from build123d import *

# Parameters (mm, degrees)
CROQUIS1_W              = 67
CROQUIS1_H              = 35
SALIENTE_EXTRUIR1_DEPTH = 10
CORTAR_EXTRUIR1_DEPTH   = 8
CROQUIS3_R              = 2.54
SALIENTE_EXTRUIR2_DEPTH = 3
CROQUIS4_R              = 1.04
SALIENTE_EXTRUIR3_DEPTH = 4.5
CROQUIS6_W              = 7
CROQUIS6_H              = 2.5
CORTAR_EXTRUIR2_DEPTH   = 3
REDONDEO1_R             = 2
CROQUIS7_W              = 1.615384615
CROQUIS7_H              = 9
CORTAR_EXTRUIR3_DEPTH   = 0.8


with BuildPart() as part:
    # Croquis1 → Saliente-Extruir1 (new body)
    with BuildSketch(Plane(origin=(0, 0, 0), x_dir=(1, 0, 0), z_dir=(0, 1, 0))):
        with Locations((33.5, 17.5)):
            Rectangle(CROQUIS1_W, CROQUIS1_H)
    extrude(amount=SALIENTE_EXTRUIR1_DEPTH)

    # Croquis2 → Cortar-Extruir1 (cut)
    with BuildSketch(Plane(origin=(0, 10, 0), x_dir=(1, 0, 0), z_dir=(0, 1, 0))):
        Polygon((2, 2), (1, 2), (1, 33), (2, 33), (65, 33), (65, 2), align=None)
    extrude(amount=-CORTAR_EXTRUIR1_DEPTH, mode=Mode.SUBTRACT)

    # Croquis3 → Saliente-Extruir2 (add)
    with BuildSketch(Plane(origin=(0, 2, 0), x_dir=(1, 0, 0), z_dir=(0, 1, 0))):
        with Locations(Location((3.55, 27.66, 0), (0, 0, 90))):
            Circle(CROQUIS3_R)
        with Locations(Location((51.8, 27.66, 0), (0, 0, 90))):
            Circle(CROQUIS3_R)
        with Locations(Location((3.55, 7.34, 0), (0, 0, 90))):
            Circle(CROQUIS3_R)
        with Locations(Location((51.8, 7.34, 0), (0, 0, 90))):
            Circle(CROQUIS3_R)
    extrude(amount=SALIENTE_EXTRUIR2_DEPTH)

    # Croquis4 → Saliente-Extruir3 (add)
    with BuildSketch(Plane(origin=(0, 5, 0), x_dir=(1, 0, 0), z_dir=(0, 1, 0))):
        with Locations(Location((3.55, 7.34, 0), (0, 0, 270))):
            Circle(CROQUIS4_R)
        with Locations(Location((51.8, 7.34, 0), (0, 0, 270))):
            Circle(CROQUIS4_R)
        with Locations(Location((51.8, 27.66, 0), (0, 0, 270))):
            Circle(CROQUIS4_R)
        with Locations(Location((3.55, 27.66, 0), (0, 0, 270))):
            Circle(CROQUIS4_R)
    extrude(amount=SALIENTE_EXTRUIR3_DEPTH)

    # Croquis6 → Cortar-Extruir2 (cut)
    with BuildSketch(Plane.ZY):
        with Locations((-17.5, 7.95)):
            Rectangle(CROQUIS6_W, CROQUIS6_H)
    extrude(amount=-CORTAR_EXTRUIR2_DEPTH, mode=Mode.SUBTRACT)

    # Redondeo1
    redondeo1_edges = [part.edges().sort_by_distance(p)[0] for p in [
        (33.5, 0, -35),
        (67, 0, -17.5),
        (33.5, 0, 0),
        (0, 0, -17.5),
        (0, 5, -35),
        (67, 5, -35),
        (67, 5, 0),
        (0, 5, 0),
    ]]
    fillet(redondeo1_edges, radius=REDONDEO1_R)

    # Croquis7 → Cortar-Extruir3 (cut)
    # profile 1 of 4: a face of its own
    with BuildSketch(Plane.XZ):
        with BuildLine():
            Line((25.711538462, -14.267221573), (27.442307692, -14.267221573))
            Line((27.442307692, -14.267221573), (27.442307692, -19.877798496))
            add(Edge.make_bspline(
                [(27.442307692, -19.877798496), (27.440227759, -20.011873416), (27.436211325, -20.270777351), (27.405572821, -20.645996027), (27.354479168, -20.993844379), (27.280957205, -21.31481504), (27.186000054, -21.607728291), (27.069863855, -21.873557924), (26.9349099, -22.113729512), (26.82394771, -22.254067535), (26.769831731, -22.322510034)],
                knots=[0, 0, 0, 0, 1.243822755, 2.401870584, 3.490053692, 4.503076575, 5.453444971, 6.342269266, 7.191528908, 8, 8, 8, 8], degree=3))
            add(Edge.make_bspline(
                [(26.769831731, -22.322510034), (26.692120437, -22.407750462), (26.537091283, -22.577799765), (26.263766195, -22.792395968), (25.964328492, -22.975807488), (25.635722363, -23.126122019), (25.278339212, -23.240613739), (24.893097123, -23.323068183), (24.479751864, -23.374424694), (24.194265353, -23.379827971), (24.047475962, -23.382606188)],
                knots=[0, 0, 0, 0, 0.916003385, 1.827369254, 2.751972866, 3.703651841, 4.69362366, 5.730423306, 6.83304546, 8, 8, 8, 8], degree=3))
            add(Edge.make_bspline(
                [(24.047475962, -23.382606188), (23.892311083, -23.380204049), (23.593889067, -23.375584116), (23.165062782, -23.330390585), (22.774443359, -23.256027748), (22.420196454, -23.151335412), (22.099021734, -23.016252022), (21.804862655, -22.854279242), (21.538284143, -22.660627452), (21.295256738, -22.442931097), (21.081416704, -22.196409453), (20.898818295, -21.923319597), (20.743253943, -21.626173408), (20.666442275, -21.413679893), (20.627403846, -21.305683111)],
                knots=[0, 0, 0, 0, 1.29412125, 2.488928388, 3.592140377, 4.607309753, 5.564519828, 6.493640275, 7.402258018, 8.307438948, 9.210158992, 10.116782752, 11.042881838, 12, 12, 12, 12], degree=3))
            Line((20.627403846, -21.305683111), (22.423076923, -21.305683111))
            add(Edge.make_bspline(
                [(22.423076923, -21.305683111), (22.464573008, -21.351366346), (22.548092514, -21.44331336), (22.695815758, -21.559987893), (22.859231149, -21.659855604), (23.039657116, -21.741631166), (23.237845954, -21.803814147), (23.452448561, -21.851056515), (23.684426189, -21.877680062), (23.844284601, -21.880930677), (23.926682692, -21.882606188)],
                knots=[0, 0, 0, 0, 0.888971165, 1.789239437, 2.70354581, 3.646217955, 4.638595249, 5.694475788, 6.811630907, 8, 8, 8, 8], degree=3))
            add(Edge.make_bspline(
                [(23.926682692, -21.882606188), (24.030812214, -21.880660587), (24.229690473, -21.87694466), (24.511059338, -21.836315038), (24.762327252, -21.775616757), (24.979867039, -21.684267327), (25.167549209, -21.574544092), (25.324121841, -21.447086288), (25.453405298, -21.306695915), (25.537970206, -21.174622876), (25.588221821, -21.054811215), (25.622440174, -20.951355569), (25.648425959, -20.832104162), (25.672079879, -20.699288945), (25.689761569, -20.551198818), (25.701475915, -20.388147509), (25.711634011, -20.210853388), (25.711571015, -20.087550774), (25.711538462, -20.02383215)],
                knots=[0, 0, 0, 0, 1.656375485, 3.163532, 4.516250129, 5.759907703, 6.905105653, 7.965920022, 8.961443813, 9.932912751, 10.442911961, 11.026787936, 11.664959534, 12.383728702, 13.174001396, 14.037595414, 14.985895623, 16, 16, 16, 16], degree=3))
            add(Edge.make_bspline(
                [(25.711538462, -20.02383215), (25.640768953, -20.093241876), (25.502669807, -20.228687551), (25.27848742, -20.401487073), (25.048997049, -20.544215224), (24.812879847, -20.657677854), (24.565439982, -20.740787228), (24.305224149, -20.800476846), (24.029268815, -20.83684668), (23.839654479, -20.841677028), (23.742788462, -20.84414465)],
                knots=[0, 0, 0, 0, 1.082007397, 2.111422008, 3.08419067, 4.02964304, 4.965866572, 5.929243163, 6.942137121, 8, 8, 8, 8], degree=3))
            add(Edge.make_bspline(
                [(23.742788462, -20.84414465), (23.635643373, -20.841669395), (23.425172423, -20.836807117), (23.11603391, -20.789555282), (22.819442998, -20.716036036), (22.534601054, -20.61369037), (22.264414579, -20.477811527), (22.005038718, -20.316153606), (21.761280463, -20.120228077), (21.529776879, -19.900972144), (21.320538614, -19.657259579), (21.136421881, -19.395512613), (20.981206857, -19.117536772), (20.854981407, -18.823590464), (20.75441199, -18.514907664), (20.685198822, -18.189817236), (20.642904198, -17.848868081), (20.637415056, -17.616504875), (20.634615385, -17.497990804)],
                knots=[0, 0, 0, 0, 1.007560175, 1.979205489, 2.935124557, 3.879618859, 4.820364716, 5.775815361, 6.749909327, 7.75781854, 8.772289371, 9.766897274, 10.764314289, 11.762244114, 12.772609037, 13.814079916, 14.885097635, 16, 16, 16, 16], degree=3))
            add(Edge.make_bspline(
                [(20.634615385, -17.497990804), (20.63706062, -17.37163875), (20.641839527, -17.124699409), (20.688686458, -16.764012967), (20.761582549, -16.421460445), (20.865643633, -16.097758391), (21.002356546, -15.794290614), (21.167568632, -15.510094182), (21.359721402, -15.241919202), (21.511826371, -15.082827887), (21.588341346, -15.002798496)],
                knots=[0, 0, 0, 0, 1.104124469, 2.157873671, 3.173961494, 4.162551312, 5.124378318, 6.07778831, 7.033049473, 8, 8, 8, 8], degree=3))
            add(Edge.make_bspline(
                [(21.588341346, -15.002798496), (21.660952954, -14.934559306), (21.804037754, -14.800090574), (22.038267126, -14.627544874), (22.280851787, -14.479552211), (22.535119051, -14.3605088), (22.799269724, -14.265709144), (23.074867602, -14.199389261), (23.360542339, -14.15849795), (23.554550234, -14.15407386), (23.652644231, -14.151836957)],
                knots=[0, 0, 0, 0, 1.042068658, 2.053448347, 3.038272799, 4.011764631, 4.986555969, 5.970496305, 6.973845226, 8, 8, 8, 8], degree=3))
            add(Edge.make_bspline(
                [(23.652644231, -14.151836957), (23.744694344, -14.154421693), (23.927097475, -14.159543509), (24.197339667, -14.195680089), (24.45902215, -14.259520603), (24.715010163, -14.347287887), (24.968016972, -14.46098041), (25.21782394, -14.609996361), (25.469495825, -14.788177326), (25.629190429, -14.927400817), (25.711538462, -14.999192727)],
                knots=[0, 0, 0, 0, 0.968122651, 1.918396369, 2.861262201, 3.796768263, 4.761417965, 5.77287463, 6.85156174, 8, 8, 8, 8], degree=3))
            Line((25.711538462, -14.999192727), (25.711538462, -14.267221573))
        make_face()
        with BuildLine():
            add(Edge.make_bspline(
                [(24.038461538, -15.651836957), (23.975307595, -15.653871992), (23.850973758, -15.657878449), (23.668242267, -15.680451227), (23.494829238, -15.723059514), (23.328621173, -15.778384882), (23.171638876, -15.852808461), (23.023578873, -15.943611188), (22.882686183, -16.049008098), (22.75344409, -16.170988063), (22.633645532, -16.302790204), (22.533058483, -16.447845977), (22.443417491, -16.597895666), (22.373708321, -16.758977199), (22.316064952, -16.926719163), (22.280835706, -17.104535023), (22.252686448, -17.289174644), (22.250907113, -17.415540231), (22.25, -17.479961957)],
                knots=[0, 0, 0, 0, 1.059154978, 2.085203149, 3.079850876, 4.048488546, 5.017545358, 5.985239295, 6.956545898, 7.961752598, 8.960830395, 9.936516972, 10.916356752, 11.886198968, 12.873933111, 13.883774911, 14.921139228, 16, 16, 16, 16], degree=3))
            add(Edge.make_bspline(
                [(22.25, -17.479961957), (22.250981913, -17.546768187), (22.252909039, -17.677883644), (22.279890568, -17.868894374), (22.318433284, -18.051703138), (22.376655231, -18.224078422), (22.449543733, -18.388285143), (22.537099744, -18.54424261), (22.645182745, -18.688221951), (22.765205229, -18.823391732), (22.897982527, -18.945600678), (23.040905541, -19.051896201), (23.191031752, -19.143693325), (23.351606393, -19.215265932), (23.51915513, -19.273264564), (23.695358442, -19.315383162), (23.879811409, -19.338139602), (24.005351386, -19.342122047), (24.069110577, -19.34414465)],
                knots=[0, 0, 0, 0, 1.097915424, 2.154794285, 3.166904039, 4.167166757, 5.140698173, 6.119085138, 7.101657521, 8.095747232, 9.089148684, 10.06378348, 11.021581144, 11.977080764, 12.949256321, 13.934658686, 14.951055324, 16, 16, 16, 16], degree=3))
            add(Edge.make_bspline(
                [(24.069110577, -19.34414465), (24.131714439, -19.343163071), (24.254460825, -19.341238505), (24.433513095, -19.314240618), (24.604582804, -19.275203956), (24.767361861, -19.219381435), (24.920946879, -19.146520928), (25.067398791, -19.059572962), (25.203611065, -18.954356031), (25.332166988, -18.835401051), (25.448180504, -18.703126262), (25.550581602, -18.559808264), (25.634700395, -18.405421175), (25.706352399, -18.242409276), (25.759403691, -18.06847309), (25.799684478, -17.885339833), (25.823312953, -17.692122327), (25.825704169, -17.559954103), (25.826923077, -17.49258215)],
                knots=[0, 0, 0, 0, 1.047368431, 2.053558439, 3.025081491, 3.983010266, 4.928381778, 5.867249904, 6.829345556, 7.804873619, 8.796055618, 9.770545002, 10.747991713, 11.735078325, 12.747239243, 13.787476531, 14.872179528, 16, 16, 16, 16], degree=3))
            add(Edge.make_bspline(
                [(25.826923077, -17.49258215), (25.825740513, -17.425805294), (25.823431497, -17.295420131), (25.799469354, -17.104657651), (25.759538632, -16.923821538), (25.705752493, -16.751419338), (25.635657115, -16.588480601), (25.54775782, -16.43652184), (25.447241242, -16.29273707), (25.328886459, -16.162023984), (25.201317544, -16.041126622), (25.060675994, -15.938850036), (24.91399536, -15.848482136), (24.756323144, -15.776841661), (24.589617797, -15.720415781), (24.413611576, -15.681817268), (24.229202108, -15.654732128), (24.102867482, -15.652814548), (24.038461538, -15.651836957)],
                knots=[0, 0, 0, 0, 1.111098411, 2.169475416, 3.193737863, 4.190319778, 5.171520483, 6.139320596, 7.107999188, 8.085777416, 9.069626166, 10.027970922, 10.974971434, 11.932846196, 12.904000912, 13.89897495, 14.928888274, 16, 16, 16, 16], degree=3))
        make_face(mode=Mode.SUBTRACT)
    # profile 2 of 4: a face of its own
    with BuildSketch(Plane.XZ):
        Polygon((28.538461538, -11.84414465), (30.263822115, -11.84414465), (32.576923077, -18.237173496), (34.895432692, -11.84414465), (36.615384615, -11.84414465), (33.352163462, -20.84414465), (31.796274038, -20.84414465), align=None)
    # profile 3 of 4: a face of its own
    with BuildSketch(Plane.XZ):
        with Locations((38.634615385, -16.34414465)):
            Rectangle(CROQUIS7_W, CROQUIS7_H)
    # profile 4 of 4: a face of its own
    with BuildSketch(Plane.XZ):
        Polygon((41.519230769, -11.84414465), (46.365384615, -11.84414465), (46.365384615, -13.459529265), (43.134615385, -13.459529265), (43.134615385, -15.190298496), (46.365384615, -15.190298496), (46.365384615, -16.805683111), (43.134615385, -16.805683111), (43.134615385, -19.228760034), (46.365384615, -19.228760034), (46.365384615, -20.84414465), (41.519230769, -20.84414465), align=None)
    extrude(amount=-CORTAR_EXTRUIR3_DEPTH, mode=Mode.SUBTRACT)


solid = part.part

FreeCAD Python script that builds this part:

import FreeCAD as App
import Part
import Sketcher
Q = App.Units.Quantity


def edges_at(feature, points):
    """Names of the edges that pass closest to the given points."""
    edges = feature.Shape.Edges
    near = lambda p: min(range(len(edges)), key=lambda i: edges[i].distToShape(Part.Vertex(*p))[0])
    return sorted({f"Edge{near(p) + 1}" for p in points})

doc = App.newDocument("Part")
body = doc.addObject("PartDesign::Body", "Body")

# Sketch on XZ plane
sketch1 = body.newObject("Sketcher::SketchObject", "Sketch")
sketch1.AttachmentSupport = (doc.getObject("XZ_Plane"), [""])
sketch1.MapMode = "FlatFace"
sketch1.addGeometry([
    Part.LineSegment(App.Vector(0, -35, 0), App.Vector(0, 0, 0)),
    Part.LineSegment(App.Vector(0, 0, 0), App.Vector(67, 0, 0)),
    Part.LineSegment(App.Vector(67, 0, 0), App.Vector(67, -35, 0)),
    Part.LineSegment(App.Vector(67, -35, 0), App.Vector(0, -35, 0)),
], False)
sketch1.addConstraint([
    Sketcher.Constraint("Coincident", 0, 2, 1, 1),
    Sketcher.Constraint("Coincident", 1, 2, 2, 1),
    Sketcher.Constraint("Coincident", 2, 2, 3, 1),
    Sketcher.Constraint("Coincident", 3, 2, 0, 1),
    Sketcher.Constraint("Vertical", 0),
    Sketcher.Constraint("Horizontal", 1),
    Sketcher.Constraint("Vertical", 2),
    Sketcher.Constraint("Horizontal", 3),
    Sketcher.Constraint("Coincident", 0, 2, -1, 1),
    Sketcher.Constraint("DistanceX", 1, 1, 1, 2, Q("67 mm")),
    Sketcher.Constraint("DistanceY", 0, 1, 0, 2, Q("35 mm")),
])
pad1 = body.newObject("PartDesign::Pad", "Pad")
pad1.Profile = sketch1
pad1.Length = 10
pad1.Reversed = True

# Sketch on XZ plane
sketch2 = body.newObject("Sketcher::SketchObject", "Sketch001")
sketch2.AttachmentSupport = (doc.getObject("XZ_Plane"), [""])
sketch2.MapMode = "FlatFace"
sketch2.AttachmentOffset = App.Placement(App.Vector(0, 0, -10), App.Rotation())
sketch2.addGeometry([
    Part.LineSegment(App.Vector(1, -2, 0), App.Vector(65, -2, 0)),
    Part.LineSegment(App.Vector(65, -2, 0), App.Vector(65, -33, 0)),
    Part.LineSegment(App.Vector(65, -33, 0), App.Vector(1, -33, 0)),
    Part.LineSegment(App.Vector(1, -33, 0), App.Vector(1, -2, 0)),
], False)
sketch2.addConstraint([
    Sketcher.Constraint("Coincident", 0, 2, 1, 1),
    Sketcher.Constraint("Coincident", 1, 2, 2, 1),
    Sketcher.Constraint("Coincident", 2, 2, 3, 1),
    Sketcher.Constraint("Coincident", 3, 2, 0, 1),
    Sketcher.Constraint("Horizontal", 0),
    Sketcher.Constraint("Vertical", 1),
    Sketcher.Constraint("Horizontal", 2),
    Sketcher.Constraint("Vertical", 3),
    Sketcher.Constraint("DistanceX", 0, 1, 0, 2, Q("64 mm")),
    Sketcher.Constraint("DistanceY", 1, 2, 1, 1, Q("31 mm")),
    Sketcher.Constraint("DistanceX", -1, 1, 0, 2, Q("65 mm")),
    Sketcher.Constraint("DistanceY", 0, 2, -1, 1, Q("2 mm")),
])
pocket1 = body.newObject("PartDesign::Pocket", "Pocket")
pocket1.Profile = sketch2
pocket1.Length = 8
pocket1.Reversed = True

# Sketch on XZ plane
sketch3 = body.newObject("Sketcher::SketchObject", "Sketch002")
sketch3.AttachmentSupport = (doc.getObject("XZ_Plane"), [""])
sketch3.MapMode = "FlatFace"
sketch3.AttachmentOffset = App.Placement(App.Vector(0, 0, -2), App.Rotation())
sketch3.addGeometry([
    Part.Circle(App.Vector(3.5, -27.7, 0), App.Vector(0, 0, 1), 2.5),
    Part.Circle(App.Vector(51.8, -27.7, 0), App.Vector(0, 0, 1), 2.5),
    Part.Circle(App.Vector(3.5, -7.3, 0), App.Vector(0, 0, 1), 2.5),
    Part.Circle(App.Vector(51.8, -7.3, 0), App.Vector(0, 0, 1), 2.5),
], False)
sketch3.addConstraint([
    Sketcher.Constraint("Equal", 0, 1),
    Sketcher.Constraint("Equal", 1, 2),
    Sketcher.Constraint("Equal", 2, 3),
    Sketcher.Constraint("Horizontal", 0, 3, 1, 3),
    Sketcher.Constraint("Horizontal", 2, 3, 3, 3),
    Sketcher.Constraint("Vertical", 0, 3, 2, 3),
    Sketcher.Constraint("Vertical", 1, 3, 3, 3),
    Sketcher.Constraint("Diameter", 0, Q("5.08 mm")),
    Sketcher.Constraint("DistanceX", -1, 1, 1, 3, Q("51.8 mm")),
    Sketcher.Constraint("DistanceX", -1, 1, 0, 3, Q("3.55 mm")),
    Sketcher.Constraint("DistanceY", 0, 3, -1, 1, Q("27.66 mm")),
    Sketcher.Constraint("DistanceY", 2, 3, -1, 1, Q("7.34 mm")),
])
pad2 = body.newObject("PartDesign::Pad", "Pad001")
pad2.Profile = sketch3
pad2.Length = 3
pad2.Reversed = True

# Sketch on XZ plane
sketch4 = body.newObject("Sketcher::SketchObject", "Sketch003")
sketch4.AttachmentSupport = (doc.getObject("XZ_Plane"), [""])
sketch4.MapMode = "FlatFace"
sketch4.AttachmentOffset = App.Placement(App.Vector(0, 0, -5), App.Rotation())
sketch4.addGeometry([
    Part.Circle(App.Vector(3.5, -7.3, 0), App.Vector(0, 0, 1), 1),
    Part.Circle(App.Vector(51.8, -7.3, 0), App.Vector(0, 0, 1), 1),
    Part.Circle(App.Vector(51.8, -27.7, 0), App.Vector(0, 0, 1), 1),
    Part.Circle(App.Vector(3.5, -27.7, 0), App.Vector(0, 0, 1), 1),
], False)
sketch4.addConstraint([
    Sketcher.Constraint("Equal", 0, 1),
    Sketcher.Constraint("Equal", 1, 2),
    Sketcher.Constraint("Equal", 2, 3),
    Sketcher.Constraint("Horizontal", 0, 3, 1, 3),
    Sketcher.Constraint("Horizontal", 2, 3, 3, 3),
    Sketcher.Constraint("Vertical", 1, 3, 2, 3),
    Sketcher.Constraint("Vertical", 0, 3, 3, 3),
    Sketcher.Constraint("Diameter", 0, Q("2.08 mm")),
    Sketcher.Constraint("DistanceX", -1, 1, 1, 3, Q("51.8 mm")),
    Sketcher.Constraint("DistanceX", -1, 1, 0, 3, Q("3.55 mm")),
    Sketcher.Constraint("DistanceY", 0, 3, -1, 1, Q("7.34 mm")),
    Sketcher.Constraint("DistanceY", 2, 3, -1, 1, Q("27.66 mm")),
])
pad3 = body.newObject("PartDesign::Pad", "Pad002")
pad3.Profile = sketch4
pad3.Length = 4.5
pad3.Reversed = True

# Sketch on YZ plane
sketch5 = body.newObject("Sketcher::SketchObject", "Sketch004")
sketch5.AttachmentSupport = (doc.getObject("YZ_Plane"), [""])
sketch5.MapMode = "FlatFace"
sketch5.addGeometry([
    Part.LineSegment(App.Vector(9.2, -21, 0), App.Vector(6.7, -21, 0)),
    Part.LineSegment(App.Vector(6.7, -21, 0), App.Vector(6.7, -14, 0)),
    Part.LineSegment(App.Vector(6.7, -14, 0), App.Vector(9.2, -14, 0)),
    Part.LineSegment(App.Vector(9.2, -14, 0), App.Vector(9.2, -21, 0)),
], False)
sketch5.addConstraint([
    Sketcher.Constraint("Coincident", 0, 2, 1, 1),
    Sketcher.Constraint("Coincident", 1, 2, 2, 1),
    Sketcher.Constraint("Coincident", 2, 2, 3, 1),
    Sketcher.Constraint("Coincident", 3, 2, 0, 1),
    Sketcher.Constraint("Horizontal", 0),
    Sketcher.Constraint("Vertical", 1),
    Sketcher.Constraint("Horizontal", 2),
    Sketcher.Constraint("Vertical", 3),
    Sketcher.Constraint("DistanceY", 1, 1, 1, 2, Q("7 mm")),
    Sketcher.Constraint("DistanceX", 0, 2, 0, 1, Q("2.5 mm")),
    Sketcher.Constraint("DistanceY", 0, 2, -1, 1, Q("21 mm")),
    Sketcher.Constraint("DistanceX", -1, 1, 0, 2, Q("6.7 mm")),
])
pocket2 = body.newObject("PartDesign::Pocket", "Pocket001")
pocket2.Profile = sketch5
pocket2.Length = 3
pocket2.Reversed = True
doc.recompute()

fillet = body.newObject("PartDesign::Fillet", "Fillet")
fillet.Base = (pocket2, edges_at(pocket2, [
    (33.5, 0, -35),
    (67, 0, -17.5),
    (33.5, 0, 0),
    (0, 0, -17.5),
    (0, 5, -35),
    (67, 5, -35),
    (67, 5, 0),
    (0, 5, 0),
]))
fillet.Radius = 2

# Sketch on XZ plane
sketch6 = body.newObject("Sketcher::SketchObject", "Sketch005")
sketch6.AttachmentSupport = (doc.getObject("XZ_Plane"), [""])
sketch6.MapMode = "FlatFace"
sketch6.addGeometry([
    Part.LineSegment(App.Vector(27.442308, -14.267222, 0), App.Vector(25.711538, -14.267222, 0)),  # 0
    Part.LineSegment(App.Vector(25.711538, -14.267222, 0), App.Vector(25.711538, -14.999193, 0)),  # 1
    Part.BSplineCurve([App.Vector(23.652644, -14.151837, 0), App.Vector(23.744694, -14.154422, 0), App.Vector(23.927097, -14.159544, 0), App.Vector(24.19734, -14.19568, 0), App.Vector(24.459022, -14.259521, 0), App.Vector(24.71501, -14.347288, 0), App.Vector(24.968017, -14.46098, 0), App.Vector(25.217824, -14.609996, 0), App.Vector(25.469496, -14.788177, 0), App.Vector(25.62919, -14.927401, 0), App.Vector(25.711538, -14.999193, 0)], [4, 1, 1, 1, 1, 1, 1, 1, 4], [0, 0.968122651, 1.918396369, 2.861262201, 3.796768263, 4.761417965, 5.77287463, 6.85156174, 8], False, 3, [1, 1, 1, 1, 1, 1, 1, 1, 1, 1, 1], False),  # 2
    Part.BSplineCurve([App.Vector(21.588341, -15.002798, 0), App.Vector(21.660953, -14.934559, 0), App.Vector(21.804038, -14.800091, 0), App.Vector(22.038267, -14.627545, 0), App.Vector(22.280852, -14.479552, 0), App.Vector(22.535119, -14.360509, 0), App.Vector(22.79927, -14.265709, 0), App.Vector(23.074868, -14.199389, 0), App.Vector(23.360542, -14.158498, 0), App.Vector(23.55455, -14.154074, 0), App.Vector(23.652644, -14.151837, 0)], [4, 1, 1, 1, 1, 1, 1, 1, 4], [0, 1.042068658, 2.053448347, 3.038272799, 4.011764631, 4.986555969, 5.970496305, 6.973845226, 8], False, 3, [1, 1, 1, 1, 1, 1, 1, 1, 1, 1, 1], False),  # 3
    Part.BSplineCurve([App.Vector(20.634615, -17.497991, 0), App.Vector(20.637061, -17.371639, 0), App.Vector(20.64184, -17.124699, 0), App.Vector(20.688686, -16.764013, 0), App.Vector(20.761583, -16.42146, 0), App.Vector(20.865644, -16.097758, 0), App.Vector(21.002357, -15.794291, 0), App.Vector(21.167569, -15.510094, 0), App.Vector(21.359721, -15.241919, 0), App.Vector(21.511826, -15.082828, 0), App.Vector(21.588341, -15.002798, 0)], [4, 1, 1, 1, 1, 1, 1, 1, 4], [0, 1.104124469, 2.157873671, 3.173961494, 4.162551312, 5.124378318, 6.07778831, 7.033049473, 8], False, 3, [1, 1, 1, 1, 1, 1, 1, 1, 1, 1, 1], False),  # 4
    Part.BSplineCurve([App.Vector(23.742788, -20.844145, 0), App.Vector(23.635643, -20.841669, 0), App.Vector(23.425172, -20.836807, 0), App.Vector(23.116034, -20.789555, 0), App.Vector(22.819443, -20.716036, 0), App.Vector(22.534601, -20.61369, 0), App.Vector(22.264415, -20.477812, 0), App.Vector(22.005039, -20.316154, 0), App.Vector(21.76128, -20.120228, 0), App.Vector(21.529777, -19.900972, 0), App.Vector(21.320539, -19.65726, 0), App.Vector(21.136422, -19.395513, 0), App.Vector(20.981207, -19.117537, 0), App.Vector(20.854981, -18.82359, 0), App.Vector(20.754412, -18.514908, 0), App.Vector(20.685199, -18.189817, 0), App.Vector(20.642904, -17.848868, 0), App.Vector(20.637415, -17.616505, 0), App.Vector(20.634615, -17.497991, 0)], [4, 1, 1, 1, 1, 1, 1, 1, 1, 1, 1, 1, 1, 1, 1, 1, 4], [0, 1.007560175, 1.979205489, 2.935124557, 3.879618859, 4.820364716, 5.775815361, 6.749909327, 7.75781854, 8.772289371, 9.766897274, 10.764314289, 11.762244114, 12.772609037, 13.814079916, 14.885097635, 16], False, 3, [1, 1, 1, 1, 1, 1, 1, 1, 1, 1, 1, 1, 1, 1, 1, 1, 1, 1, 1], False),  # 5
    Part.BSplineCurve([App.Vector(25.711538, -20.023832, 0), App.Vector(25.640769, -20.093242, 0), App.Vector(25.50267, -20.228688, 0), App.Vector(25.278487, -20.401487, 0), App.Vector(25.048997, -20.544215, 0), App.Vector(24.81288, -20.657678, 0), App.Vector(24.56544, -20.740787, 0), App.Vector(24.305224, -20.800477, 0), App.Vector(24.029269, -20.836847, 0), App.Vector(23.839654, -20.841677, 0), App.Vector(23.742788, -20.844145, 0)], [4, 1, 1, 1, 1, 1, 1, 1, 4], [0, 1.082007397, 2.111422008, 3.08419067, 4.02964304, 4.965866572, 5.929243163, 6.942137121, 8], False, 3, [1, 1, 1, 1, 1, 1, 1, 1, 1, 1, 1], False),  # 6
    Part.BSplineCurve([App.Vector(23.926683, -21.882606, 0), App.Vector(24.030812, -21.880661, 0), App.Vector(24.22969, -21.876945, 0), App.Vector(24.511059, -21.836315, 0), App.Vector(24.762327, -21.775617, 0), App.Vector(24.979867, -21.684267, 0), App.Vector(25.167549, -21.574544, 0), App.Vector(25.324122, -21.447086, 0), App.Vector(25.453405, -21.306696, 0), App.Vector(25.53797, -21.174623, 0), App.Vector(25.588222, -21.054811, 0), App.Vector(25.62244, -20.951356, 0), App.Vector(25.648426, -20.832104, 0), App.Vector(25.67208, -20.699289, 0), App.Vector(25.689762, -20.551199, 0), App.Vector(25.701476, -20.388148, 0), App.Vector(25.711634, -20.210853, 0), App.Vector(25.711571, -20.087551, 0), App.Vector(25.711538, -20.023832, 0)], [4, 1, 1, 1, 1, 1, 1, 1, 1, 1, 1, 1, 1, 1, 1, 1, 4], [0, 1.656375485, 3.163532, 4.516250129, 5.759907703, 6.905105653, 7.965920022, 8.961443813, 9.932912751, 10.442911961, 11.026787936, 11.664959534, 12.383728702, 13.174001396, 14.037595414, 14.985895623, 16], False, 3, [1, 1, 1, 1, 1, 1, 1, 1, 1, 1, 1, 1, 1, 1, 1, 1, 1, 1, 1], False),  # 7
    Part.BSplineCurve([App.Vector(22.423077, -21.305683, 0), App.Vector(22.464573, -21.351366, 0), App.Vector(22.548093, -21.443313, 0), App.Vector(22.695816, -21.559988, 0), App.Vector(22.859231, -21.659856, 0), App.Vector(23.039657, -21.741631, 0), App.Vector(23.237846, -21.803814, 0), App.Vector(23.452449, -21.851057, 0), App.Vector(23.684426, -21.87768, 0), App.Vector(23.844285, -21.880931, 0), App.Vector(23.926683, -21.882606, 0)], [4, 1, 1, 1, 1, 1, 1, 1, 4], [0, 0.888971165, 1.789239437, 2.70354581, 3.646217955, 4.638595249, 5.694475788, 6.811630907, 8], False, 3, [1, 1, 1, 1, 1, 1, 1, 1, 1, 1, 1], False),  # 8
    Part.LineSegment(App.Vector(22.423077, -21.305683, 0), App.Vector(20.627404, -21.305683, 0)),  # 9
    Part.BSplineCurve([App.Vector(24.047476, -23.382606, 0), App.Vector(23.892311, -23.380204, 0), App.Vector(23.593889, -23.375584, 0), App.Vector(23.165063, -23.330391, 0), App.Vector(22.774443, -23.256028, 0), App.Vector(22.420196, -23.151335, 0), App.Vector(22.099022, -23.016252, 0), App.Vector(21.804863, -22.854279, 0), App.Vector(21.538284, -22.660627, 0), App.Vector(21.295257, -22.442931, 0), App.Vector(21.081417, -22.196409, 0), App.Vector(20.898818, -21.92332, 0), App.Vector(20.743254, -21.626173, 0), App.Vector(20.666442, -21.41368, 0), App.Vector(20.627404, -21.305683, 0)], [4, 1, 1, 1, 1, 1, 1, 1, 1, 1, 1, 1, 4], [0, 1.29412125, 2.488928388, 3.592140377, 4.607309753, 5.564519828, 6.493640275, 7.402258018, 8.307438948, 9.210158992, 10.116782752, 11.042881838, 12], False, 3, [1, 1, 1, 1, 1, 1, 1, 1, 1, 1, 1, 1, 1, 1, 1], False),  # 10
    Part.BSplineCurve([App.Vector(26.769832, -22.32251, 0), App.Vector(26.69212, -22.40775, 0), App.Vector(26.537091, -22.5778, 0), App.Vector(26.263766, -22.792396, 0), App.Vector(25.964328, -22.975807, 0), App.Vector(25.635722, -23.126122, 0), App.Vector(25.278339, -23.240614, 0), App.Vector(24.893097, -23.323068, 0), App.Vector(24.479752, -23.374425, 0), App.Vector(24.194265, -23.379828, 0), App.Vector(24.047476, -23.382606, 0)], [4, 1, 1, 1, 1, 1, 1, 1, 4], [0, 0.916003385, 1.827369254, 2.751972866, 3.703651841, 4.69362366, 5.730423306, 6.83304546, 8], False, 3, [1, 1, 1, 1, 1, 1, 1, 1, 1, 1, 1], False),  # 11
    Part.BSplineCurve([App.Vector(27.442308, -19.877798, 0), App.Vector(27.440228, -20.011873, 0), App.Vector(27.436211, -20.270777, 0), App.Vector(27.405573, -20.645996, 0), App.Vector(27.354479, -20.993844, 0), App.Vector(27.280957, -21.314815, 0), App.Vector(27.186, -21.607728, 0), App.Vector(27.069864, -21.873558, 0), App.Vector(26.93491, -22.11373, 0), App.Vector(26.823948, -22.254068, 0), App.Vector(26.769832, -22.32251, 0)], [4, 1, 1, 1, 1, 1, 1, 1, 4], [0, 1.243822755, 2.401870584, 3.490053692, 4.503076575, 5.453444971, 6.342269266, 7.191528908, 8], False, 3, [1, 1, 1, 1, 1, 1, 1, 1, 1, 1, 1], False),  # 12
    Part.LineSegment(App.Vector(27.442308, -19.877798, 0), App.Vector(27.442308, -14.267222, 0)),  # 13
    Part.BSplineCurve([App.Vector(25.826923, -17.492582, 0), App.Vector(25.825741, -17.425805, 0), App.Vector(25.823431, -17.29542, 0), App.Vector(25.799469, -17.104658, 0), App.Vector(25.759539, -16.923822, 0), App.Vector(25.705752, -16.751419, 0), App.Vector(25.635657, -16.588481, 0), App.Vector(25.547758, -16.436522, 0), App.Vector(25.447241, -16.292737, 0), App.Vector(25.328886, -16.162024, 0), App.Vector(25.201318, -16.041127, 0), App.Vector(25.060676, -15.93885, 0), App.Vector(24.913995, -15.848482, 0), App.Vector(24.756323, -15.776842, 0), App.Vector(24.589618, -15.720416, 0), App.Vector(24.413612, -15.681817, 0), App.Vector(24.229202, -15.654732, 0), App.Vector(24.102867, -15.652815, 0), App.Vector(24.038462, -15.651837, 0)], [4, 1, 1, 1, 1, 1, 1, 1, 1, 1, 1, 1, 1, 1, 1, 1, 4], [0, 1.111098411, 2.169475416, 3.193737863, 4.190319778, 5.171520483, 6.139320596, 7.107999188, 8.085777416, 9.069626166, 10.027970922, 10.974971434, 11.932846196, 12.904000912, 13.89897495, 14.928888274, 16], False, 3, [1, 1, 1, 1, 1, 1, 1, 1, 1, 1, 1, 1, 1, 1, 1, 1, 1, 1, 1], False),  # 14
    Part.BSplineCurve([App.Vector(24.069111, -19.344145, 0), App.Vector(24.131714, -19.343163, 0), App.Vector(24.254461, -19.341239, 0), App.Vector(24.433513, -19.314241, 0), App.Vector(24.604583, -19.275204, 0), App.Vector(24.767362, -19.219381, 0), App.Vector(24.920947, -19.146521, 0), App.Vector(25.067399, -19.059573, 0), App.Vector(25.203611, -18.954356, 0), App.Vector(25.332167, -18.835401, 0), App.Vector(25.448181, -18.703126, 0), App.Vector(25.550582, -18.559808, 0), App.Vector(25.6347, -18.405421, 0), App.Vector(25.706352, -18.242409, 0), App.Vector(25.759404, -18.068473, 0), App.Vector(25.799684, -17.88534, 0), App.Vector(25.823313, -17.692122, 0), App.Vector(25.825704, -17.559954, 0), App.Vector(25.826923, -17.492582, 0)], [4, 1, 1, 1, 1, 1, 1, 1, 1, 1, 1, 1, 1, 1, 1, 1, 4], [0, 1.047368431, 2.053558439, 3.025081491, 3.983010266, 4.928381778, 5.867249904, 6.829345556, 7.804873619, 8.796055618, 9.770545002, 10.747991713, 11.735078325, 12.747239243, 13.787476531, 14.872179528, 16], False, 3, [1, 1, 1, 1, 1, 1, 1, 1, 1, 1, 1, 1, 1, 1, 1, 1, 1, 1, 1], False),  # 15
    Part.BSplineCurve([App.Vector(22.25, -17.479962, 0), App.Vector(22.250982, -17.546768, 0), App.Vector(22.252909, -17.677884, 0), App.Vector(22.279891, -17.868894, 0), App.Vector(22.318433, -18.051703, 0), App.Vector(22.376655, -18.224078, 0), App.Vector(22.449544, -18.388285, 0), App.Vector(22.5371, -18.544243, 0), App.Vector(22.645183, -18.688222, 0), App.Vector(22.765205, -18.823392, 0), App.Vector(22.897983, -18.945601, 0), App.Vector(23.040906, -19.051896, 0), App.Vector(23.191032, -19.143693, 0), App.Vector(23.351606, -19.215266, 0), App.Vector(23.519155, -19.273265, 0), App.Vector(23.695358, -19.315383, 0), App.Vector(23.879811, -19.33814, 0), App.Vector(24.005351, -19.342122, 0), App.Vector(24.069111, -19.344145, 0)], [4, 1, 1, 1, 1, 1, 1, 1, 1, 1, 1, 1, 1, 1, 1, 1, 4], [0, 1.097915424, 2.154794285, 3.166904039, 4.167166757, 5.140698173, 6.119085138, 7.101657521, 8.095747232, 9.089148684, 10.06378348, 11.021581144, 11.977080764, 12.949256321, 13.934658686, 14.951055324, 16], False, 3, [1, 1, 1, 1, 1, 1, 1, 1, 1, 1, 1, 1, 1, 1, 1, 1, 1, 1, 1], False),  # 16
    Part.BSplineCurve([App.Vector(24.038462, -15.651837, 0), App.Vector(23.975308, -15.653872, 0), App.Vector(23.850974, -15.657878, 0), App.Vector(23.668242, -15.680451, 0), App.Vector(23.494829, -15.72306, 0), App.Vector(23.328621, -15.778385, 0), App.Vector(23.171639, -15.852808, 0), App.Vector(23.023579, -15.943611, 0), App.Vector(22.882686, -16.049008, 0), App.Vector(22.753444, -16.170988, 0), App.Vector(22.633646, -16.30279, 0), App.Vector(22.533058, -16.447846, 0), App.Vector(22.443417, -16.597896, 0), App.Vector(22.373708, -16.758977, 0), App.Vector(22.316065, -16.926719, 0), App.Vector(22.280836, -17.104535, 0), App.Vector(22.252686, -17.289175, 0), App.Vector(22.250907, -17.41554, 0), App.Vector(22.25, -17.479962, 0)], [4, 1, 1, 1, 1, 1, 1, 1, 1, 1, 1, 1, 1, 1, 1, 1, 4], [0, 1.059154978, 2.085203149, 3.079850876, 4.048488546, 5.017545358, 5.985239295, 6.956545898, 7.961752598, 8.960830395, 9.936516972, 10.916356752, 11.886198968, 12.873933111, 13.883774911, 14.921139228, 16], False, 3, [1, 1, 1, 1, 1, 1, 1, 1, 1, 1, 1, 1, 1, 1, 1, 1, 1, 1, 1], False),  # 17
    Part.LineSegment(App.Vector(30.263822, -11.844145, 0), App.Vector(28.538462, -11.844145, 0)),  # 18
    Part.LineSegment(App.Vector(28.538462, -11.844145, 0), App.Vector(31.796274, -20.844145, 0)),  # 19
    Part.LineSegment(App.Vector(31.796274, -20.844145, 0), App.Vector(33.352163, -20.844145, 0)),  # 20
    Part.LineSegment(App.Vector(33.352163, -20.844145, 0), App.Vector(36.615385, -11.844145, 0)),  # 21
    Part.LineSegment(App.Vector(36.615385, -11.844145, 0), App.Vector(34.895433, -11.844145, 0)),  # 22
    Part.LineSegment(App.Vector(34.895433, -11.844145, 0), App.Vector(32.576923, -18.237173, 0)),  # 23
    Part.LineSegment(App.Vector(32.576923, -18.237173, 0), App.Vector(30.263822, -11.844145, 0)),  # 24
    Part.LineSegment(App.Vector(37.826923, -11.844145, 0), App.Vector(37.826923, -20.844145, 0)),  # 25
    Part.LineSegment(App.Vector(37.826923, -20.844145, 0), App.Vector(39.442308, -20.844145, 0)),  # 26
    Part.LineSegment(App.Vector(39.442308, -20.844145, 0), App.Vector(39.442308, -11.844145, 0)),  # 27
    Part.LineSegment(App.Vector(39.442308, -11.844145, 0), App.Vector(37.826923, -11.844145, 0)),  # 28
    Part.LineSegment(App.Vector(46.365385, -11.844145, 0), App.Vector(41.519231, -11.844145, 0)),  # 29
    Part.LineSegment(App.Vector(41.519231, -11.844145, 0), App.Vector(41.519231, -20.844145, 0)),  # 30
    Part.LineSegment(App.Vector(41.519231, -20.844145, 0), App.Vector(46.365385, -20.844145, 0)),  # 31
    Part.LineSegment(App.Vector(46.365385, -20.844145, 0), App.Vector(46.365385, -19.22876, 0)),  # 32
    Part.LineSegment(App.Vector(46.365385, -19.22876, 0), App.Vector(43.134615, -19.22876, 0)),  # 33
    Part.LineSegment(App.Vector(43.134615, -19.22876, 0), App.Vector(43.134615, -16.805683, 0)),  # 34
    Part.LineSegment(App.Vector(43.134615, -16.805683, 0), App.Vector(46.365385, -16.805683, 0)),  # 35
    Part.LineSegment(App.Vector(46.365385, -16.805683, 0), App.Vector(46.365385, -15.190298, 0)),  # 36
    Part.LineSegment(App.Vector(46.365385, -15.190298, 0), App.Vector(43.134615, -15.190298, 0)),  # 37
    Part.LineSegment(App.Vector(43.134615, -15.190298, 0), App.Vector(43.134615, -13.459529, 0)),  # 38
    Part.LineSegment(App.Vector(43.134615, -13.459529, 0), App.Vector(46.365385, -13.459529, 0)),  # 39
    Part.LineSegment(App.Vector(46.365385, -13.459529, 0), App.Vector(46.365385, -11.844145, 0)),  # 40
], False)
sketch6.addConstraint([
    Sketcher.Constraint("Block", 2),
    Sketcher.Constraint("Block", 3),
    Sketcher.Constraint("Block", 4),
    Sketcher.Constraint("Block", 5),
    Sketcher.Constraint("Block", 6),
    Sketcher.Constraint("Block", 7),
    Sketcher.Constraint("Block", 8),
    Sketcher.Constraint("Block", 10),
    Sketcher.Constraint("Block", 11),
    Sketcher.Constraint("Block", 12),
    Sketcher.Constraint("Block", 14),
    Sketcher.Constraint("Block", 15),
    Sketcher.Constraint("Block", 16),
    Sketcher.Constraint("Block", 17),
    Sketcher.Constraint("Coincident", 0, 2, 1, 1),
    Sketcher.Constraint("Coincident", 1, 2, 2, 2),
    Sketcher.Constraint("Coincident", 8, 1, 9, 1),
    Sketcher.Constraint("Coincident", 9, 2, 10, 2),
    Sketcher.Constraint("Coincident", 12, 1, 13, 1),
    Sketcher.Constraint("Coincident", 13, 2, 0, 1),
    Sketcher.Constraint("Coincident", 18, 2, 19, 1),
    Sketcher.Constraint("Coincident", 19, 2, 20, 1),
    Sketcher.Constraint("Coincident", 20, 2, 21, 1),
    Sketcher.Constraint("Coincident", 21, 2, 22, 1),
    Sketcher.Constraint("Coincident", 22, 2, 23, 1),
    Sketcher.Constraint("Coincident", 23, 2, 24, 1),
    Sketcher.Constraint("Coincident", 24, 2, 18, 1),
    Sketcher.Constraint("Coincident", 25, 2, 26, 1),
    Sketcher.Constraint("Coincident", 26, 2, 27, 1),
    Sketcher.Constraint("Coincident", 27, 2, 28, 1),
    Sketcher.Constraint("Coincident", 28, 2, 25, 1),
    Sketcher.Constraint("Coincident", 29, 2, 30, 1),
    Sketcher.Constraint("Coincident", 30, 2, 31, 1),
    Sketcher.Constraint("Coincident", 31, 2, 32, 1),
    Sketcher.Constraint("Coincident", 32, 2, 33, 1),
    Sketcher.Constraint("Coincident", 33, 2, 34, 1),
    Sketcher.Constraint("Coincident", 34, 2, 35, 1),
    Sketcher.Constraint("Coincident", 35, 2, 36, 1),
    Sketcher.Constraint("Coincident", 36, 2, 37, 1),
    Sketcher.Constraint("Coincident", 37, 2, 38, 1),
    Sketcher.Constraint("Coincident", 38, 2, 39, 1),
    Sketcher.Constraint("Coincident", 39, 2, 40, 1),
    Sketcher.Constraint("Coincident", 40, 2, 29, 1),
    Sketcher.Constraint("Horizontal", 0),
    Sketcher.Constraint("Vertical", 1),
    Sketcher.Constraint("Vertical", 13),
    Sketcher.Constraint("Horizontal", 18),
    Sketcher.Constraint("Horizontal", 20),
    Sketcher.Constraint("Horizontal", 22),
    Sketcher.Constraint("Vertical", 25),
    Sketcher.Constraint("Horizontal", 26),
    Sketcher.Constraint("Vertical", 27),
    Sketcher.Constraint("Horizontal", 28),
    Sketcher.Constraint("Horizontal", 29),
    Sketcher.Constraint("Vertical", 30),
    Sketcher.Constraint("Horizontal", 31),
    Sketcher.Constraint("Vertical", 32),
    Sketcher.Constraint("Horizontal", 33),
    Sketcher.Constraint("Vertical", 34),
    Sketcher.Constraint("Horizontal", 35),
    Sketcher.Constraint("Vertical", 36),
    Sketcher.Constraint("Horizontal", 37),
    Sketcher.Constraint("Vertical", 38),
    Sketcher.Constraint("Horizontal", 39),
    Sketcher.Constraint("Vertical", 40),
    Sketcher.Constraint("Horizontal", 18, 2, 21, 2),
    Sketcher.Constraint("Horizontal", 20, 2, 25, 2),
    Sketcher.Constraint("Horizontal", 24, 2, 27, 2),
    Sketcher.Constraint("Horizontal", 28, 2, 29, 2),
    Sketcher.Constraint("Horizontal", 26, 2, 30, 2),
    Sketcher.Constraint("Vertical", 32, 2, 35, 2),
    Sketcher.Constraint("Vertical", 34, 2, 37, 2),
    Sketcher.Constraint("Vertical", 36, 2, 39, 2),
    Sketcher.Constraint("Equal", 28, 32),
    Sketcher.Constraint("Equal", 32, 36),
    Sketcher.Constraint("Equal", 0, 38),
    Sketcher.Constraint("Equal", 36, 40),
    Sketcher.Constraint("DistanceY", 25, 2, 25, 1, Q("9 mm")),
    Sketcher.Constraint("DistanceX", 23, 2, 25, 2, Q("5.25 mm")),
    Sketcher.Constraint("DistanceX", 18, 2, 18, 1, Q("1.725361 mm")),
    Sketcher.Constraint("DistanceX", 20, 1, 20, 2, Q("1.555889 mm")),
    Sketcher.Constraint("DistanceX", 22, 2, 22, 1, Q("1.719952 mm")),
    Sketcher.Constraint("DistanceX", 33, 2, 33, 1, Q("3.230769 mm")),
    Sketcher.Constraint("DistanceY", 1, 2, 1, 1, Q("0.731971 mm")),
    Sketcher.Constraint("DistanceY", 36, 2, -1, 1, Q("15.190298 mm")),
    Sketcher.Constraint("DistanceX", 18, 2, 20, 2, Q("4.813702 mm")),
    Sketcher.Constraint("DistanceX", 24, 2, 28, 2, Q("7.563101 mm")),
    Sketcher.Constraint("DistanceX", 22, 2, 29, 2, Q("6.623798 mm")),
    Sketcher.Constraint("Distance", 21, Q("9.573328 mm")),
    Sketcher.Constraint("Distance", 24, Q("6.798621 mm")),
    Sketcher.Constraint("DistanceX", 26, 1, 26, 2, Q("1.615385 mm")),
    Sketcher.Constraint("DistanceX", 29, 2, 29, 1, Q("4.846154 mm")),
    Sketcher.Constraint("DistanceX", -1, 1, 18, 2, Q("28.538462 mm")),
])
pocket3 = body.newObject("PartDesign::Pocket", "Pocket002")
pocket3.Profile = sketch6
pocket3.Length = 0.8

doc.recompute()
